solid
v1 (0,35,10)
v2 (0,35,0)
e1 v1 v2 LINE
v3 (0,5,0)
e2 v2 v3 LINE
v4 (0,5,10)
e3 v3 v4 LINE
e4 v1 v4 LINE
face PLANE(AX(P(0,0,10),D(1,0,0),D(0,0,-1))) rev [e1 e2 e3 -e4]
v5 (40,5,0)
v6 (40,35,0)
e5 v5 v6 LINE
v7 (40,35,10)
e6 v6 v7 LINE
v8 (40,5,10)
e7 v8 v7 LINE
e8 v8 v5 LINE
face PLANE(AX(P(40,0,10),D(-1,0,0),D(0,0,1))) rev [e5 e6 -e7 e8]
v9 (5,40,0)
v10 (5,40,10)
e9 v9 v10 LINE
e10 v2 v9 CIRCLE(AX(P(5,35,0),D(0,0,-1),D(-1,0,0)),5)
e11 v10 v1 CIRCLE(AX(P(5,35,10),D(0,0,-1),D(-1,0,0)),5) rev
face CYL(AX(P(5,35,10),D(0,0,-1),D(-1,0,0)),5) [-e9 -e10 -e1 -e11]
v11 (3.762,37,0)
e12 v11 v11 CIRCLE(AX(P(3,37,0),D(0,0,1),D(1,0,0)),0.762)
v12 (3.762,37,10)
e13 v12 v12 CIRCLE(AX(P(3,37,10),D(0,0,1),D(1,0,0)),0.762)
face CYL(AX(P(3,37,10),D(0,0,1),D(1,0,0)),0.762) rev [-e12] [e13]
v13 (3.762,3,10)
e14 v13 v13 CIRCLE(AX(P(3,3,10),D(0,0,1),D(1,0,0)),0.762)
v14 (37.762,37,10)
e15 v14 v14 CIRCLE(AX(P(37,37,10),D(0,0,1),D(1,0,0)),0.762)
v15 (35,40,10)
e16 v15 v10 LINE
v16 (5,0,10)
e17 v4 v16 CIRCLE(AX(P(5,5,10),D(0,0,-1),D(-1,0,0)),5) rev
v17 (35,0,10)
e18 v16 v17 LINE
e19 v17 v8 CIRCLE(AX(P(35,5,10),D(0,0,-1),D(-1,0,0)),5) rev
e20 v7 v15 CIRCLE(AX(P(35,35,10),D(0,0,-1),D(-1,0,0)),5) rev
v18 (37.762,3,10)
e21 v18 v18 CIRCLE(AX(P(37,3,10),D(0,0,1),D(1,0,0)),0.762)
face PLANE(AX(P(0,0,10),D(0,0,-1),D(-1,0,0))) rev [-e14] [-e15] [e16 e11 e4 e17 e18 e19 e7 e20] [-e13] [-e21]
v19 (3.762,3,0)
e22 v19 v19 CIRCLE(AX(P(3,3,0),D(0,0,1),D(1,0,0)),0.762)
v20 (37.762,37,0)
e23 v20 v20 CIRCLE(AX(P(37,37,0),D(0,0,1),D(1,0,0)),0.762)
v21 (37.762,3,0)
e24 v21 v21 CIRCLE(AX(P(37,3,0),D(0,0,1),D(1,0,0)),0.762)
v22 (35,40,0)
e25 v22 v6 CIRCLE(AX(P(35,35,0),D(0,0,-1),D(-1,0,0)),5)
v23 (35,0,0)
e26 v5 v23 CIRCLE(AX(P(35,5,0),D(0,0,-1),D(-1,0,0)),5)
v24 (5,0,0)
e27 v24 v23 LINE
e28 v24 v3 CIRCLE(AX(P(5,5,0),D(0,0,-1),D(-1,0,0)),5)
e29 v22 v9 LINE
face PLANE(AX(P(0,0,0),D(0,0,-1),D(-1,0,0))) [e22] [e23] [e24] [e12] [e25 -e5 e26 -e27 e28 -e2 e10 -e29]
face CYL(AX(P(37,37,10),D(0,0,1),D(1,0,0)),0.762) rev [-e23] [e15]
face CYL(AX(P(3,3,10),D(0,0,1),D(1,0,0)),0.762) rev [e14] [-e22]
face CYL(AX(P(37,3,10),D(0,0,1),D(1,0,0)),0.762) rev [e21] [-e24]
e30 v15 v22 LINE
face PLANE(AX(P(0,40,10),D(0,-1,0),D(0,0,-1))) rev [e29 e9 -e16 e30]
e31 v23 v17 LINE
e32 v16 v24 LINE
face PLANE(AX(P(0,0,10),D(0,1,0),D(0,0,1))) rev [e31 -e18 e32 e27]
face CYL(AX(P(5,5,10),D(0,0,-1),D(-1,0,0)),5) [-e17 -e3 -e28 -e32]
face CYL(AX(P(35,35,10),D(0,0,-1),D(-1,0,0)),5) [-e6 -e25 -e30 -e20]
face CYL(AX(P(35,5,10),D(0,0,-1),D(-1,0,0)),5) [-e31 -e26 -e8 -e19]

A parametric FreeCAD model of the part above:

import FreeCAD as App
import Part
import Sketcher

V = App.Vector
Q = App.Units.Quantity


def edges_at(feature, points):
    """Names of the edges that pass closest to the given points."""
    edges = feature.Shape.Edges
    near = lambda p: min(range(len(edges)), key=lambda i: edges[i].distToShape(Part.Vertex(*p))[0])
    return sorted({f"Edge{near(p) + 1}" for p in points})


def add_polygon(sketch, points):
    """Adds a closed chain of lines whose ends are joined by coincident constraints."""
    first, n = sketch.GeometryCount, len(points)
    for a, b in zip(points, points[1:] + points[:1]):
        sketch.addGeometry(Part.LineSegment(App.Vector(*a, 0), App.Vector(*b, 0)), False)
    for i in range(n):
        sketch.addConstraint(Sketcher.Constraint("Coincident", first + i, 2, first + (i + 1) % n, 1))

doc = App.newDocument("Part")
body = doc.addObject("PartDesign::Body", "Body")

# Sketch on XY plane
sketch1 = body.newObject("Sketcher::SketchObject", "Sketch")
sketch1.AttachmentSupport = (doc.getObject("XY_Plane"), [""])
sketch1.MapMode = "FlatFace"
add_polygon(sketch1, [(0, 40), (0, 0), (40, 0), (40, 40)])  # lines 0-3
sketch1.addConstraint([
    Sketcher.Constraint("Vertical", 0),
    Sketcher.Constraint("Horizontal", 1),
    Sketcher.Constraint("Vertical", 2),
    Sketcher.Constraint("Horizontal", 3),
    Sketcher.Constraint("Coincident", 0, 2, -1, 1),
    Sketcher.Constraint("Equal", 3, 0),
    Sketcher.Constraint("DistanceX", 1, 1, 1, 2, Q("40 mm")),
])
pad1 = body.newObject("PartDesign::Pad", "Pad")
pad1.Profile = sketch1
pad1.Length = 10

# Sketch on XY plane
sketch2 = body.newObject("Sketcher::SketchObject", "Sketch001")
sketch2.AttachmentSupport = (doc.getObject("XY_Plane"), [""])
sketch2.MapMode = "FlatFace"
sketch2.AttachmentOffset = App.Placement(V(0, 0, 10), App.Rotation())
sketch2.addGeometry(Part.Circle(V(3, 37, 0), V(0, 0, 1), 0.762), False)
sketch2.addConstraint([
    Sketcher.Constraint("Diameter", 0, Q("1.524 mm")),
    Sketcher.Constraint("DistanceX", -1, 1, 0, 3, Q("3 mm")),
    Sketcher.Constraint("DistanceY", -1, 1, 0, 3, Q("37 mm")),
])
doc.recompute()
hole = body.newObject("PartDesign::Hole", "Hole")
hole.Profile = sketch2
hole.ThreadType = "None"
hole.Diameter = 1.524
hole.DepthType = "ThroughAll"
doc.recompute()

datumplane = body.newObject("PartDesign::Plane", "DatumPlane")
datumplane.AttachmentSupport = (doc.getObject("YZ_Plane"), [""])
datumplane.MapMode = "FlatFace"
datumplane.AttachmentOffset = App.Placement(V(0, 0, 20), App.Rotation())
mirrored = body.newObject("PartDesign::Mirrored", "Mirrored")
mirrored.Originals = [hole]
mirrored.MirrorPlane = (datumplane, [""])
body.Tip = mirrored
doc.recompute()

datumplane2 = body.newObject("PartDesign::Plane", "DatumPlane001")
datumplane2.AttachmentSupport = (doc.getObject("XZ_Plane"), [""])
datumplane2.MapMode = "FlatFace"
datumplane2.AttachmentOffset = App.Placement(V(0, 0, -20), App.Rotation())
mirrored2 = body.newObject("PartDesign::Mirrored", "Mirrored001")
mirrored2.Originals = [hole]
mirrored2.MirrorPlane = (datumplane2, [""])
body.Tip = mirrored2

# Sketch on XY plane
sketch3 = body.newObject("Sketcher::SketchObject", "Sketch002")
sketch3.AttachmentSupport = (doc.getObject("XY_Plane"), [""])
sketch3.MapMode = "FlatFace"
sketch3.AttachmentOffset = App.Placement(V(0, 0, 10), App.Rotation())
sketch3.addGeometry(Part.Circle(V(37, 3, 0), V(0, 0, 1), 0.762), False)
sketch3.addConstraint([
    Sketcher.Constraint("Diameter", 0, Q("1.524 mm")),
    Sketcher.Constraint("DistanceX", -1, 1, 0, 3, Q("37 mm")),
    Sketcher.Constraint("DistanceY", -1, 1, 0, 3, Q("3 mm")),
])
doc.recompute()
hole2 = body.newObject("PartDesign::Hole", "Hole001")
hole2.Profile = sketch3
hole2.ThreadType = "None"
hole2.Diameter = 1.524
hole2.DepthType = "ThroughAll"
doc.recompute()

fillet = body.newObject("PartDesign::Fillet", "Fillet")
fillet.Base = (hole2, edges_at(hole2, [
    (0, 40, 5),
    (40, 40, 5),
    (40, 0, 5),
    (0, 0, 5),
]))
fillet.Radius = 5

doc.recompute()
